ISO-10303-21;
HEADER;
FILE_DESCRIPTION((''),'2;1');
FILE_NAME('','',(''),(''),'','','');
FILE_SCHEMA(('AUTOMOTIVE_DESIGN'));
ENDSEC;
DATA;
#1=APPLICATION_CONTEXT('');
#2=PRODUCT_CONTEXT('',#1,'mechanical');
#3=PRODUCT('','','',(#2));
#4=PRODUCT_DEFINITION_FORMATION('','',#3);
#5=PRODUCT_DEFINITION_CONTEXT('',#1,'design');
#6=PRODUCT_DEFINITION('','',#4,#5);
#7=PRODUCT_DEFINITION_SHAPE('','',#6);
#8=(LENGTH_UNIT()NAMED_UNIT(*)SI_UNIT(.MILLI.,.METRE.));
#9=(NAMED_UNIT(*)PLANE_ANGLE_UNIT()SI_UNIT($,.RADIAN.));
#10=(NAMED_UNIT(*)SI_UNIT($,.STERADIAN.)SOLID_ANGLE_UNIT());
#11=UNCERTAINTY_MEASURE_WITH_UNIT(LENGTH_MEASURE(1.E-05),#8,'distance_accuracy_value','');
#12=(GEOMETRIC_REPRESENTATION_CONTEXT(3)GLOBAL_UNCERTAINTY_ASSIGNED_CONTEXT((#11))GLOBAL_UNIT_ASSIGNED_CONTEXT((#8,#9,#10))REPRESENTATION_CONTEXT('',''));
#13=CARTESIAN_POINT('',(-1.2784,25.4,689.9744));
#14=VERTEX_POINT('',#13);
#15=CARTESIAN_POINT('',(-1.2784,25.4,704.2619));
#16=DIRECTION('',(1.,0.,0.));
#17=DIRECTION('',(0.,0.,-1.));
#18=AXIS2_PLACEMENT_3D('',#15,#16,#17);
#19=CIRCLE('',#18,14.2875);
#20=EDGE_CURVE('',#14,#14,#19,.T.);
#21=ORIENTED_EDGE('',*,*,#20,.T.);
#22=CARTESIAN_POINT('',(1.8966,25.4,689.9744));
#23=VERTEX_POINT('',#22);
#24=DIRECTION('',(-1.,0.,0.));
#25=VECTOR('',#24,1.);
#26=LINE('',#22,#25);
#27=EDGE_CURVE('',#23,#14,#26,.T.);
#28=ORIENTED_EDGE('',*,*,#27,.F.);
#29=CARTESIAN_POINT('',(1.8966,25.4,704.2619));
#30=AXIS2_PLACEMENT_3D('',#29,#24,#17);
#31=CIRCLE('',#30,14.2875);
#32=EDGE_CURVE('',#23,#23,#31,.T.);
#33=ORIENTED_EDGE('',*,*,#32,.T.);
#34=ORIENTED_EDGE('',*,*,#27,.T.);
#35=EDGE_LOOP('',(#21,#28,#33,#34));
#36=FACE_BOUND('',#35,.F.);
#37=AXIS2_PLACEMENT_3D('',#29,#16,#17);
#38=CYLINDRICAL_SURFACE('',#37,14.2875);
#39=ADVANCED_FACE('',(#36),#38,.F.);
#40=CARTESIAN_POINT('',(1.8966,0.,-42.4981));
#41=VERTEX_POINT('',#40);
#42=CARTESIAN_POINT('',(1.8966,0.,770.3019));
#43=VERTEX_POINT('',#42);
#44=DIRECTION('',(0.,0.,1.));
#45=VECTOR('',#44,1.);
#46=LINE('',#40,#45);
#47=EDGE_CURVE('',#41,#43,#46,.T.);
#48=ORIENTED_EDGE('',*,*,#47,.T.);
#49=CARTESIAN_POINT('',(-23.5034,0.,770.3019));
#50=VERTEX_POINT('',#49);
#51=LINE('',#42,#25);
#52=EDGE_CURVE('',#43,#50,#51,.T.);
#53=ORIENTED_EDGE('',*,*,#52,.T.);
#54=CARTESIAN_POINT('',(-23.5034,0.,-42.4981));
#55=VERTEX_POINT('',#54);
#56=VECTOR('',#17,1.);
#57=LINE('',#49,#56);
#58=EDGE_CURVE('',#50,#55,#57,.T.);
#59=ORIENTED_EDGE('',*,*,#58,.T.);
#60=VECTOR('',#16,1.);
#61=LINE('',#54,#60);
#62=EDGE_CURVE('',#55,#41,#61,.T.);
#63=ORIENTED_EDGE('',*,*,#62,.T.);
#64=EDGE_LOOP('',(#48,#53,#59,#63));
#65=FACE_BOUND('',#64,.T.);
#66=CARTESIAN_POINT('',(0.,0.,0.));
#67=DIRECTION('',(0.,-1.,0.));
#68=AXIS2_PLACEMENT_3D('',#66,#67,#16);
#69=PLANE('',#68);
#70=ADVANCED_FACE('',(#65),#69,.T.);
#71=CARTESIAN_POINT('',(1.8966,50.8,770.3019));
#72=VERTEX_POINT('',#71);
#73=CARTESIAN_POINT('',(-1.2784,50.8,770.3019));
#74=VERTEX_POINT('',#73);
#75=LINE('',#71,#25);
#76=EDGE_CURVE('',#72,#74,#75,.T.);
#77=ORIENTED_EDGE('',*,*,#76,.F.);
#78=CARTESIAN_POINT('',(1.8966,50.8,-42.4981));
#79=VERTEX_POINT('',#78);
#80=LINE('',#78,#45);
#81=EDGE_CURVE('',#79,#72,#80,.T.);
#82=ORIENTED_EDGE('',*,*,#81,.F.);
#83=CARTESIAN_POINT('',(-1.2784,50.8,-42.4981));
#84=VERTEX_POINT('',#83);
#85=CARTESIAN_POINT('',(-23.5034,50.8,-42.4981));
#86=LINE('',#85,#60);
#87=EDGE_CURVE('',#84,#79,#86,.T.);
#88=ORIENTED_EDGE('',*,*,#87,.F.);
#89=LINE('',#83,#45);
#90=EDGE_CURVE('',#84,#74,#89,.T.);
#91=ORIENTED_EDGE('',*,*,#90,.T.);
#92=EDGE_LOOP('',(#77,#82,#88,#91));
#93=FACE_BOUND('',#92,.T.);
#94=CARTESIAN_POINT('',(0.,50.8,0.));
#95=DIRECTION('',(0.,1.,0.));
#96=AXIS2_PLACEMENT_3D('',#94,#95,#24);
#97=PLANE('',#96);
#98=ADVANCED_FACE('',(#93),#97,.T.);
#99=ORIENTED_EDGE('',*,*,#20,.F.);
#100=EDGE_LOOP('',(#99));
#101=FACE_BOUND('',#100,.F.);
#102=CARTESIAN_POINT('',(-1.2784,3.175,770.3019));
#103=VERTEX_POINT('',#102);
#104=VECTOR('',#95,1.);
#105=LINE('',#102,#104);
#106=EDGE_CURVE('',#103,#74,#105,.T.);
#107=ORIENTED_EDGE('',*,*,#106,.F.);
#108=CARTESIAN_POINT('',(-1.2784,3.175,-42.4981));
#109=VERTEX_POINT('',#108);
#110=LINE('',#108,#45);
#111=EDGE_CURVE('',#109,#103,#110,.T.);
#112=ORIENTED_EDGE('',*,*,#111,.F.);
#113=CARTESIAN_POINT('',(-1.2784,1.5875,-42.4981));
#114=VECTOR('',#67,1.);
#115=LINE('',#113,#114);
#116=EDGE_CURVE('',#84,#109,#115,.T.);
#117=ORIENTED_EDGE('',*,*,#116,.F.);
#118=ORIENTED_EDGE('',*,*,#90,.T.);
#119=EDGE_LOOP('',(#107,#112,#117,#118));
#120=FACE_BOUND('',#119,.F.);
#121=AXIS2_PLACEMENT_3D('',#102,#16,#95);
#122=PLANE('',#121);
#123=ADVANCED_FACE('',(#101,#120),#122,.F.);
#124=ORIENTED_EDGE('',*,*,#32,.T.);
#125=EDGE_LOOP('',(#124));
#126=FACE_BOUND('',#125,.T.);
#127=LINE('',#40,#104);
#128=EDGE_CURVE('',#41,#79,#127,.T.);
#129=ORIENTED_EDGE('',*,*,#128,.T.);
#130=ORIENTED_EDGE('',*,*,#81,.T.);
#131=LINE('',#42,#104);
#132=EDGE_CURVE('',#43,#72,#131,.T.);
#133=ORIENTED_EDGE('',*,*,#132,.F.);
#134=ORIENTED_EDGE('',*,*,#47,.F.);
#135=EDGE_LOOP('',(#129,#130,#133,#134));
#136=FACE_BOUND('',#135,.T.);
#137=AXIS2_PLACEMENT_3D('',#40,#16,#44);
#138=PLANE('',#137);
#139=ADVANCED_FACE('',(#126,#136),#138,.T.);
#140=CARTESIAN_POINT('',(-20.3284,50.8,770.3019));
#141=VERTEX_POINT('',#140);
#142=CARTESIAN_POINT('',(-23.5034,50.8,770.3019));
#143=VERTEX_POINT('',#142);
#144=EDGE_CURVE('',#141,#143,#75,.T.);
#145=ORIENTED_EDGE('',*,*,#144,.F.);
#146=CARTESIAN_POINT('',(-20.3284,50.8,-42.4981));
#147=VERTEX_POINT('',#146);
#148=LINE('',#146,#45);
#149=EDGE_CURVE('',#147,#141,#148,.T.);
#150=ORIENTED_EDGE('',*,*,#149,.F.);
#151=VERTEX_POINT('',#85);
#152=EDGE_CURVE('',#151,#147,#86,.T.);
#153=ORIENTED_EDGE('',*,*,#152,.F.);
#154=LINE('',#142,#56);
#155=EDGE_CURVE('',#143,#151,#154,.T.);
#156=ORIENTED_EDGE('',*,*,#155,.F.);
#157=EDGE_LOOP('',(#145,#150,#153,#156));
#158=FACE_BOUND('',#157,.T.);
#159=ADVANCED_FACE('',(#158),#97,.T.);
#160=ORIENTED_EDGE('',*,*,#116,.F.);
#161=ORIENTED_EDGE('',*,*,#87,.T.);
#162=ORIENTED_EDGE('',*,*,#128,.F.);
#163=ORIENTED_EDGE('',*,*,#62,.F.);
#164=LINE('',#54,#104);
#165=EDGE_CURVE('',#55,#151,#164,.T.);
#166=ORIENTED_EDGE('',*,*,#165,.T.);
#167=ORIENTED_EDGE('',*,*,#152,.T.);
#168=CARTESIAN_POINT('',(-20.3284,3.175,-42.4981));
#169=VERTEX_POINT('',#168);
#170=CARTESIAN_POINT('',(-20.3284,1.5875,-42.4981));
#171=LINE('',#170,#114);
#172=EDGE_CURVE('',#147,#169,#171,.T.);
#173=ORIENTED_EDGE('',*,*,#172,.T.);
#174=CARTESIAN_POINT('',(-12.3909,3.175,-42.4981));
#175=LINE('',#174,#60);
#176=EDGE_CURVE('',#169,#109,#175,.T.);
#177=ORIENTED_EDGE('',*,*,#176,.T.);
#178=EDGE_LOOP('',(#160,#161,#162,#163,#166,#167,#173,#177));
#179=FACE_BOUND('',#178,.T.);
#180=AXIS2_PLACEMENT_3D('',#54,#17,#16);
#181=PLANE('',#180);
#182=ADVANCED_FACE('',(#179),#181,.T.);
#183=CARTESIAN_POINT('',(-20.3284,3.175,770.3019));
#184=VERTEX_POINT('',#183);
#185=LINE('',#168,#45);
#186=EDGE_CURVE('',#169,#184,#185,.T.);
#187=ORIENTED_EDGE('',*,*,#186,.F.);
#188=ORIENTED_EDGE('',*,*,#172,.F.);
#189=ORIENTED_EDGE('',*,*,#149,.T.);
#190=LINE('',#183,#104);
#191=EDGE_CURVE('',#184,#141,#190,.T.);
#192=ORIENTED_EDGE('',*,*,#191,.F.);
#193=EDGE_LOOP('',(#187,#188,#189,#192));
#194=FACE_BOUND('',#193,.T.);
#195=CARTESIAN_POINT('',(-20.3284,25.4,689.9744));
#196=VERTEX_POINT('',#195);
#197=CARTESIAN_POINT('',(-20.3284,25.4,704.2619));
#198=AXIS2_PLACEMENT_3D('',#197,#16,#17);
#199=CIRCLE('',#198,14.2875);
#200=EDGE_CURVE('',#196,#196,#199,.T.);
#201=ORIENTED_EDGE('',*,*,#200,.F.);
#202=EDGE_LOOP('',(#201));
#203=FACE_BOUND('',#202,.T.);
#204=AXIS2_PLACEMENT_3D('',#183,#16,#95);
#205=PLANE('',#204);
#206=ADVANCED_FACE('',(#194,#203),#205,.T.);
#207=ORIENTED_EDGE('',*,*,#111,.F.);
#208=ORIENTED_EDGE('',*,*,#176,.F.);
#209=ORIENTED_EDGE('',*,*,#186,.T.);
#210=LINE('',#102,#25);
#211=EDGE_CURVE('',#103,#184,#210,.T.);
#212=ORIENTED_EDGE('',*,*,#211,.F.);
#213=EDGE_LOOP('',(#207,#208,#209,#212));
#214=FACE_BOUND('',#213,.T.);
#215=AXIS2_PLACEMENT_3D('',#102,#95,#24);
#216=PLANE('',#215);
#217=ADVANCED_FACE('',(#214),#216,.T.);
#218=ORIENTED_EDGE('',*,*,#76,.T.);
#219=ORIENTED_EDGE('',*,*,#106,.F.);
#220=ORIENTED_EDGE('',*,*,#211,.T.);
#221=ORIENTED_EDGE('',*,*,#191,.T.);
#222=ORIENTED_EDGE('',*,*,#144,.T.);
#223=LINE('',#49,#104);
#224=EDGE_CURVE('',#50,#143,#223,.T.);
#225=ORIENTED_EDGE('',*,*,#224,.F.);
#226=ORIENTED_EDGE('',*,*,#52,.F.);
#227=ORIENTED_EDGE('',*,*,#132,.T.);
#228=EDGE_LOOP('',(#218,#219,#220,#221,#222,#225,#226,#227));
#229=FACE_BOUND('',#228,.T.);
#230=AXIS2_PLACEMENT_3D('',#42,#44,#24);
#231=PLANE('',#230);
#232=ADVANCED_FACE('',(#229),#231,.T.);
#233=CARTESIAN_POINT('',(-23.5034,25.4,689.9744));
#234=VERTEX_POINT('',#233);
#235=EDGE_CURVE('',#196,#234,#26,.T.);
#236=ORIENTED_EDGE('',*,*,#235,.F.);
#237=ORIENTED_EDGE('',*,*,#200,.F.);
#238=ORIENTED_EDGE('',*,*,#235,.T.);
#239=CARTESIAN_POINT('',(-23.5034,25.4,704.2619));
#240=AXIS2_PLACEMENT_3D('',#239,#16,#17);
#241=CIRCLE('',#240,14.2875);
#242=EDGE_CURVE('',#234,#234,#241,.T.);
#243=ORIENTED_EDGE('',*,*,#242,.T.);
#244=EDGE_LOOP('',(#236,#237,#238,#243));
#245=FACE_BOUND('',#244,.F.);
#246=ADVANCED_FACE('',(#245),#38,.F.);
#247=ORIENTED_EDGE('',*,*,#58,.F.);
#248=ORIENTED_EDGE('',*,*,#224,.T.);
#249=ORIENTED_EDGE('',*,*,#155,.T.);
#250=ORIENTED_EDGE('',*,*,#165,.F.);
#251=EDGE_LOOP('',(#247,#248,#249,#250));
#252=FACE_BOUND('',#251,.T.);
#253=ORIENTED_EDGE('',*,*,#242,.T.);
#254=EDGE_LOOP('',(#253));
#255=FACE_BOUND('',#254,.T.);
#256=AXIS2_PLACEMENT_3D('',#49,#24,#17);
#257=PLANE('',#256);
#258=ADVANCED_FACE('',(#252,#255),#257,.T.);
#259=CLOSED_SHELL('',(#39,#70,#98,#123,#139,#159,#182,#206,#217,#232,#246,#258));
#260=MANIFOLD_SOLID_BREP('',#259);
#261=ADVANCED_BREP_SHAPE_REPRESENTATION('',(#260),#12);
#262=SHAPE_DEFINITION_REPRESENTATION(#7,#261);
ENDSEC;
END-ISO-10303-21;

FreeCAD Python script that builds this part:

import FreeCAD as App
import Part
import Sketcher

V = App.Vector
Q = App.Units.Quantity

doc = App.newDocument("Part")
body = doc.addObject("PartDesign::Body", "Body")

sketch1 = body.newObject("Sketcher::SketchObject", "Sketch")
sketch1.AttachmentSupport = (doc.getObject("XZ_Plane"), [""])
sketch1.MapMode = "FlatFace"
sketch1.addGeometry([
    Part.LineSegment(V(-20, -39, 0), V(-1, -39, 0)),
    Part.LineSegment(V(-1, -39, 0), V(-1, 767, 0)),
    Part.LineSegment(V(-1, 767, 0), V(-20, 767, 0)),
    Part.LineSegment(V(-20, 767, 0), V(-20, -39, 0)),
], False)
sketch1.addConstraint([
    Sketcher.Constraint("Coincident", 0, 2, 1, 1),
    Sketcher.Constraint("Coincident", 1, 2, 2, 1),
    Sketcher.Constraint("Coincident", 2, 2, 3, 1),
    Sketcher.Constraint("Coincident", 3, 2, 0, 1),
    Sketcher.Constraint("Horizontal", 0),
    Sketcher.Constraint("Vertical", 1),
    Sketcher.Constraint("Horizontal", 2),
    Sketcher.Constraint("Vertical", 3),
    Sketcher.Constraint("DistanceX", 0, 1, 0, 2, Q("0.75 in")),
    Sketcher.Constraint("DistanceY", 1, 1, 1, 2, Q("31.75 in")),
    Sketcher.Constraint("DistanceX", 0, 2, -1, 1, 1.2784),
    Sketcher.Constraint("DistanceY", 0, 2, -1, 1, 39.323),
])
pad1 = body.newObject("PartDesign::Pad", "Pad")
pad1.Profile = sketch1
pad1.Length = Q("0.125 in")
pad1.Reversed = True

sketch2 = body.newObject("Sketcher::SketchObject", "Sketch001")
sketch2.AttachmentSupport = (doc.getObject("XZ_Plane"), [""])
sketch2.MapMode = "FlatFace"
sketch2.addGeometry([
    Part.LineSegment(V(2, -42, 0), V(-24, -42, 0)),
    Part.LineSegment(V(-24, -42, 0), V(-24, 770, 0)),
    Part.LineSegment(V(-24, 770, 0), V(2, 770, 0)),
    Part.LineSegment(V(2, 770, 0), V(2, -42, 0)),
    Part.LineSegment(V(-20, 767, 0), V(-20, -39, 0)),
    Part.LineSegment(V(-20, -39, 0), V(-1, -39, 0)),
    Part.LineSegment(V(-1, -39, 0), V(-1, 767, 0)),
    Part.LineSegment(V(-1, 767, 0), V(-20, 767, 0)),
], False)
sketch2.addConstraint([
    Sketcher.Constraint("Coincident", 0, 2, 1, 1),
    Sketcher.Constraint("Coincident", 1, 2, 2, 1),
    Sketcher.Constraint("Coincident", 2, 2, 3, 1),
    Sketcher.Constraint("Coincident", 3, 2, 0, 1),
    Sketcher.Constraint("Coincident", 4, 2, 5, 1),
    Sketcher.Constraint("Coincident", 5, 2, 6, 1),
    Sketcher.Constraint("Coincident", 6, 2, 7, 1),
    Sketcher.Constraint("Coincident", 7, 2, 4, 1),
    Sketcher.Constraint("Horizontal", 0),
    Sketcher.Constraint("Vertical", 1),
    Sketcher.Constraint("Horizontal", 2),
    Sketcher.Constraint("Vertical", 3),
    Sketcher.Constraint("Vertical", 4),
    Sketcher.Constraint("Horizontal", 5),
    Sketcher.Constraint("Vertical", 6),
    Sketcher.Constraint("Horizontal", 7),
    Sketcher.Constraint("DistanceX", 0, 2, 0, 1, Q("1 in")),
    Sketcher.Constraint("DistanceY", 1, 1, 1, 2, Q("32 in")),
    Sketcher.Constraint("DistanceX", 0, 2, 4, 2, Q("0.125 in")),
    Sketcher.Constraint("DistanceY", 0, 2, 4, 2, Q("0.125 in")),
    Sketcher.Constraint("DistanceX", 5, 2, 3, 2, Q("0.125 in")),
    Sketcher.Constraint("DistanceY", 6, 2, 2, 2, Q("0.125 in")),
    Sketcher.Constraint("DistanceX", 0, 2, -1, 1, 23.5034),
    Sketcher.Constraint("DistanceY", 0, 2, -1, 1, 42.498),
])
pad2 = body.newObject("PartDesign::Pad", "Pad001")
pad2.Profile = sketch2
pad2.Length = Q("2 in")
pad2.Reversed = True

sketch3 = body.newObject("Sketcher::SketchObject", "Sketch002")
sketch3.AttachmentSupport = (doc.getObject("XY_Plane"), [""])
sketch3.MapMode = "FlatFace"
sketch3.AttachmentOffset = App.Placement(V(0, 0, 770.3019), App.Rotation())
sketch3.addGeometry([
    Part.LineSegment(V(-1, 51, 0), V(-20, 51, 0)),
    Part.LineSegment(V(-20, 51, 0), V(-20, 3, 0)),
    Part.LineSegment(V(-20, 3, 0), V(-1, 3, 0)),
    Part.LineSegment(V(-1, 3, 0), V(-1, 51, 0)),
], False)
sketch3.addConstraint([
    Sketcher.Constraint("Coincident", 0, 2, 1, 1),
    Sketcher.Constraint("Coincident", 1, 2, 2, 1),
    Sketcher.Constraint("Coincident", 2, 2, 3, 1),
    Sketcher.Constraint("Coincident", 3, 2, 0, 1),
    Sketcher.Constraint("Horizontal", 0),
    Sketcher.Constraint("Vertical", 1),
    Sketcher.Constraint("Horizontal", 2),
    Sketcher.Constraint("Vertical", 3),
    Sketcher.Constraint("DistanceY", -1, 1, 1, 2, Q("0.125 in")),
    Sketcher.Constraint("DistanceY", -1, 1, 0, 2, Q("2 in")),
    Sketcher.Constraint("DistanceX", 0, 2, 0, 1, Q("0.75 in")),
    Sketcher.Constraint("DistanceX", 0, 2, -1, 1, 20.3284),
])
pocket1 = body.newObject("PartDesign::Pocket", "Pocket")
pocket1.Profile = sketch3
pocket1.Length = Q("40 in")

sketch4 = body.newObject("Sketcher::SketchObject", "Sketch003")
sketch4.AttachmentSupport = (doc.getObject("YZ_Plane"), [""])
sketch4.MapMode = "FlatFace"
sketch4.AttachmentOffset = App.Placement(V(0, 0, 1.8966), App.Rotation())
sketch4.addGeometry(Part.Circle(V(25, 704, 0), V(0, 0, 1), 14), False)
sketch4.addConstraint([
    Sketcher.Constraint("Diameter", 0, Q("1.125 in")),
    Sketcher.Constraint("DistanceX", -1, 1, 0, 3, Q("1 in")),
    Sketcher.Constraint("DistanceY", -1, 1, 0, 3, 704.262),
])
pocket2 = body.newObject("PartDesign::Pocket", "Pocket001")
pocket2.Profile = sketch4
pocket2.Length = Q("40 in")

doc.recompute()
